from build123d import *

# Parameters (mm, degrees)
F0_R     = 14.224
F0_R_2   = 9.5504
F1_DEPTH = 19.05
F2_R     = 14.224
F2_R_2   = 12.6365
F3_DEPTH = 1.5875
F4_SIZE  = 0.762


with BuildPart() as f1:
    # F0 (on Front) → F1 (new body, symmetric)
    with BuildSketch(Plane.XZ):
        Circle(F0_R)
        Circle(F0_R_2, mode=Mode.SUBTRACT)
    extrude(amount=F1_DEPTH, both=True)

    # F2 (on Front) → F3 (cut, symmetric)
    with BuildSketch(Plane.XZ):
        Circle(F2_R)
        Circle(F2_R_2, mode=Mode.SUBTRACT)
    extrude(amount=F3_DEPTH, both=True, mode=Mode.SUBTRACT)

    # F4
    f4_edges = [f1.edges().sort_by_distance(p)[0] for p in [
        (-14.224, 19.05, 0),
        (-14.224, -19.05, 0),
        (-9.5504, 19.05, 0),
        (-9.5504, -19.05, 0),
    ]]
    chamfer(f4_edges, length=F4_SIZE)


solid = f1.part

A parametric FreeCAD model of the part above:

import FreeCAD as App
import Part
import Sketcher
from FreeCAD import Vector
Q = App.Units.Quantity


def edges_at(feature, points):
    """Names of the edges that pass closest to the given points."""
    edges = feature.Shape.Edges
    near = lambda p: min(range(len(edges)), key=lambda i: edges[i].distToShape(Part.Vertex(*p))[0])
    return sorted({f"Edge{near(p) + 1}" for p in points})

doc = App.newDocument("Part")
body = doc.addObject("PartDesign::Body", "Body")

# Sketch on XZ plane
sketch1 = body.newObject("Sketcher::SketchObject", "Sketch")
sketch1.AttachmentSupport = (doc.getObject("XZ_Plane"), [""])
sketch1.MapMode = "FlatFace"
sketch1.addGeometry(Part.Circle(Vector(0, 0, 0), Vector(0, 0, 1), 14), False)
sketch1.addGeometry(Part.Circle(Vector(0, 0, 0), Vector(0, 0, 1), 10), False)
sketch1.addConstraint(Sketcher.Constraint("Coincident", 0, 3, -1, 1))
sketch1.addConstraint(Sketcher.Constraint("Coincident", 1, 3, -1, 1))
sketch1.addConstraint(Sketcher.Constraint("Diameter", 0, Q("1.12 in")))
sketch1.addConstraint(Sketcher.Constraint("Diameter", 1, Q("0.752 in")))
pad1 = body.newObject("PartDesign::Pad", "Pad")
pad1.Profile = sketch1
pad1.Length = Q("1.5 in")
pad1.Midplane = True

# Sketch on XZ plane
sketch2 = body.newObject("Sketcher::SketchObject", "Sketch001")
sketch2.AttachmentSupport = (doc.getObject("XZ_Plane"), [""])
sketch2.MapMode = "FlatFace"
sketch2.addGeometry(Part.Circle(Vector(0, 0, 0), Vector(0, 0, 1), 14), False)
sketch2.addGeometry(Part.Circle(Vector(0, 0, 0), Vector(0, 0, 1), 13), False)
sketch2.addConstraint(Sketcher.Constraint("Coincident", 0, 3, -1, 1))
sketch2.addConstraint(Sketcher.Constraint("Coincident", 1, 3, -1, 1))
sketch2.addConstraint(Sketcher.Constraint("Diameter", 0, Q("1.12 in")))
sketch2.addConstraint(Sketcher.Constraint("Diameter", 1, Q("0.995 in")))
pocket1 = body.newObject("PartDesign::Pocket", "Pocket")
pocket1.Profile = sketch2
pocket1.Length = Q("0.125 in")
pocket1.Midplane = True
doc.recompute()

chamfer = body.newObject("PartDesign::Chamfer", "Chamfer")
chamfer.Base = (pocket1, edges_at(pocket1, [
    (-14.224, 19.05, 0),
    (-14.224, -19.05, 0),
    (-9.55, 19.05, 0),
    (-9.55, -19.05, 0),
]))
chamfer.Size = Q("0.03 in")

doc.recompute()
